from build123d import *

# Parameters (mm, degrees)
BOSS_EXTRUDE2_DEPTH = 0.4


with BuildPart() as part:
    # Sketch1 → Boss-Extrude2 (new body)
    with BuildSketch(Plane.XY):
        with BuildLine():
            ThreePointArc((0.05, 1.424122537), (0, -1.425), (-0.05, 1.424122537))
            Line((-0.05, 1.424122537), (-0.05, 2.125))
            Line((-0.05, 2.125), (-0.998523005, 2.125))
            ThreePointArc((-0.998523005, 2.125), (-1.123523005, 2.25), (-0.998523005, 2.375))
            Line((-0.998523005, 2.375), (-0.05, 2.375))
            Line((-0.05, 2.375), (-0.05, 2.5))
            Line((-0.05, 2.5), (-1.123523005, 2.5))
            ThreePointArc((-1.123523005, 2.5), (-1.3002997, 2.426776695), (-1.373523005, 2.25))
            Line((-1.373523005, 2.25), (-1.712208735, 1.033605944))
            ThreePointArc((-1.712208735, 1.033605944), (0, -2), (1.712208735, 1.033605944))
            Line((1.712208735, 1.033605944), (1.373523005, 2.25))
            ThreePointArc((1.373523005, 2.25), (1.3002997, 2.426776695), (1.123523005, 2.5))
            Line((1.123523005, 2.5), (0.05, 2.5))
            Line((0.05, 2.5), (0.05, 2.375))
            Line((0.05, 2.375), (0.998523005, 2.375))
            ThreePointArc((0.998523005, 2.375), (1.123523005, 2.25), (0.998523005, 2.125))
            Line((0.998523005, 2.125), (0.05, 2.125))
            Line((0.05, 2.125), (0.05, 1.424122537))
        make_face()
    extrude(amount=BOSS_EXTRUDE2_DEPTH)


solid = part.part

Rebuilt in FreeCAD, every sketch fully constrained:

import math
import FreeCAD as App
import Part
import Sketcher

doc = App.newDocument("Part")
params = doc.addObject("Spreadsheet::Sheet", "Params")
for row, (alias, value) in enumerate([
    ("sketch1_radius", "2 mm"),
    ("sketch1_radius2", "0.25 mm"),
    ("pad1_length", "0.4 mm"),
], start=1):
    params.set(f"A{row}", alias)
    params.set(f"B{row}", "=" + value)
    params.setAlias(f"B{row}", alias)

body = doc.addObject("PartDesign::Body", "Body")

sketch1 = doc.addObject("Sketcher::SketchObject", "Sketch")
body.addObject(sketch1)
sketch1.AttachmentSupport = (doc.XY_Plane, [""])
sketch1.MapMode = "FlatFace"
sketch1.addGeometry([
    Part.ArcOfCircle(Part.Circle(App.Vector(0, 0, 0), App.Vector(0, 0, 1), 1.43), math.radians(92), math.radians(448)),
    Part.LineSegment(App.Vector(-0.05, 1.42, 0), App.Vector(-0.05, 2.12, 0)),
    Part.LineSegment(App.Vector(-0.05, 2.12, 0), App.Vector(-1, 2.12, 0)),
    Part.ArcOfCircle(Part.Circle(App.Vector(-1, 2.25, 0), App.Vector(0, 0, 1), 0.12), math.radians(90), math.radians(270)),
    Part.LineSegment(App.Vector(-1, 2.38, 0), App.Vector(-0.05, 2.38, 0)),
    Part.LineSegment(App.Vector(-0.05, 2.38, 0), App.Vector(-0.05, 2.5, 0)),
    Part.LineSegment(App.Vector(-0.05, 2.5, 0), App.Vector(-1.12, 2.5, 0)),
    Part.ArcOfCircle(Part.Circle(App.Vector(-1.12, 2.25, 0), App.Vector(0, 0, 1), 0.25), math.radians(90), math.radians(180)),
    Part.LineSegment(App.Vector(-1.37, 2.25, 0), App.Vector(-1.71, 1.03, 0)),
    Part.ArcOfCircle(Part.Circle(App.Vector(0, 0, 0), App.Vector(0, 0, 1), 2), math.radians(149), math.radians(391)),
    Part.LineSegment(App.Vector(1.71, 1.03, 0), App.Vector(1.37, 2.25, 0)),
    Part.ArcOfCircle(Part.Circle(App.Vector(1.12, 2.25, 0), App.Vector(0, 0, 1), 0.25), math.radians(0), math.radians(90)),
    Part.LineSegment(App.Vector(1.12, 2.5, 0), App.Vector(0.05, 2.5, 0)),
    Part.LineSegment(App.Vector(0.05, 2.5, 0), App.Vector(0.05, 2.38, 0)),
    Part.LineSegment(App.Vector(0.05, 2.38, 0), App.Vector(1, 2.38, 0)),
    Part.ArcOfCircle(Part.Circle(App.Vector(1, 2.25, 0), App.Vector(0, 0, 1), 0.12), math.radians(-90), math.radians(90)),
    Part.LineSegment(App.Vector(1, 2.12, 0), App.Vector(0.05, 2.12, 0)),
    Part.LineSegment(App.Vector(0.05, 2.12, 0), App.Vector(0.05, 1.42, 0)),
], False)
sketch1.addConstraint([
    Sketcher.Constraint("Coincident", 0, 1, 1, 1),
    Sketcher.Constraint("Coincident", 1, 2, 2, 1),
    Sketcher.Constraint("Tangent", 2, 2, 3, 2),
    Sketcher.Constraint("Tangent", 3, 1, 4, 1),
    Sketcher.Constraint("Coincident", 4, 2, 5, 1),
    Sketcher.Constraint("Coincident", 5, 2, 6, 1),
    Sketcher.Constraint("Tangent", 6, 2, 7, 1),
    Sketcher.Constraint("Coincident", 7, 2, 8, 1),
    Sketcher.Constraint("Coincident", 8, 2, 9, 1),
    Sketcher.Constraint("Coincident", 9, 2, 10, 1),
    Sketcher.Constraint("Coincident", 10, 2, 11, 1),
    Sketcher.Constraint("Tangent", 11, 2, 12, 1),
    Sketcher.Constraint("Coincident", 12, 2, 13, 1),
    Sketcher.Constraint("Coincident", 13, 2, 14, 1),
    Sketcher.Constraint("Tangent", 14, 2, 15, 2),
    Sketcher.Constraint("Tangent", 15, 1, 16, 1),
    Sketcher.Constraint("Coincident", 16, 2, 17, 1),
    Sketcher.Constraint("Coincident", 17, 2, 0, 2),
    Sketcher.Constraint("Vertical", 1),
    Sketcher.Constraint("Horizontal", 2),
    Sketcher.Constraint("Horizontal", 4),
    Sketcher.Constraint("Vertical", 5),
    Sketcher.Constraint("Horizontal", 6),
    Sketcher.Constraint("Horizontal", 12),
    Sketcher.Constraint("Vertical", 13),
    Sketcher.Constraint("Horizontal", 14),
    Sketcher.Constraint("Horizontal", 16),
    Sketcher.Constraint("Vertical", 17),
    Sketcher.Constraint("Coincident", 0, 3, -1, 1),
    Sketcher.Constraint("Coincident", 9, 3, -1, 1),
    Sketcher.Constraint("Equal", 7, 11),
    Sketcher.Constraint("Equal", 3, 15),
    Sketcher.Constraint("Symmetric", 7, 3, 11, 3, -2),
    Sketcher.Constraint("Symmetric", 3, 3, 15, 3, -2),
    Sketcher.Constraint("Horizontal", 3, 3, 7, 3),
    Sketcher.Constraint("Horizontal", 15, 3, 7, 2),
    Sketcher.Constraint("Horizontal", 8, 2, 9, 2),
    Sketcher.Constraint("Horizontal", 7, 2, 10, 2),
    Sketcher.Constraint("Horizontal", 0, 1, 17, 2),
    Sketcher.Constraint("Vertical", 1, 2, 4, 2),
    Sketcher.Constraint("Vertical", 13, 2, 16, 2),
    Sketcher.Constraint("Radius", 9, 2.0),
    Sketcher.Constraint("Radius", 7, 0.25),
    Sketcher.Constraint("Radius", 0, 1.425),
    Sketcher.Constraint("Radius", 3, 0.125),
    Sketcher.Constraint("DistanceY", -1, 1, 5, 2, 2.5),
    Sketcher.Constraint("DistanceX", 5, 2, 12, 2, 0.1),
    Sketcher.Constraint("DistanceX", 7, 3, 3, 3, 0.125),
    Sketcher.Constraint("DistanceX", 2, 2, 2, 1, 0.948523),
    Sketcher.Constraint("DistanceX", 8, 2, -1, 1, 1.712209),
])
sketch1.setExpression("Constraints[41]", "Params.sketch1_radius")
sketch1.setExpression("Constraints[42]", "Params.sketch1_radius2")
pad1 = doc.addObject("PartDesign::Pad", "Pad")
body.addObject(pad1)
pad1.Profile = sketch1
pad1.setExpression("Length", "Params.pad1_length")

doc.recompute()
